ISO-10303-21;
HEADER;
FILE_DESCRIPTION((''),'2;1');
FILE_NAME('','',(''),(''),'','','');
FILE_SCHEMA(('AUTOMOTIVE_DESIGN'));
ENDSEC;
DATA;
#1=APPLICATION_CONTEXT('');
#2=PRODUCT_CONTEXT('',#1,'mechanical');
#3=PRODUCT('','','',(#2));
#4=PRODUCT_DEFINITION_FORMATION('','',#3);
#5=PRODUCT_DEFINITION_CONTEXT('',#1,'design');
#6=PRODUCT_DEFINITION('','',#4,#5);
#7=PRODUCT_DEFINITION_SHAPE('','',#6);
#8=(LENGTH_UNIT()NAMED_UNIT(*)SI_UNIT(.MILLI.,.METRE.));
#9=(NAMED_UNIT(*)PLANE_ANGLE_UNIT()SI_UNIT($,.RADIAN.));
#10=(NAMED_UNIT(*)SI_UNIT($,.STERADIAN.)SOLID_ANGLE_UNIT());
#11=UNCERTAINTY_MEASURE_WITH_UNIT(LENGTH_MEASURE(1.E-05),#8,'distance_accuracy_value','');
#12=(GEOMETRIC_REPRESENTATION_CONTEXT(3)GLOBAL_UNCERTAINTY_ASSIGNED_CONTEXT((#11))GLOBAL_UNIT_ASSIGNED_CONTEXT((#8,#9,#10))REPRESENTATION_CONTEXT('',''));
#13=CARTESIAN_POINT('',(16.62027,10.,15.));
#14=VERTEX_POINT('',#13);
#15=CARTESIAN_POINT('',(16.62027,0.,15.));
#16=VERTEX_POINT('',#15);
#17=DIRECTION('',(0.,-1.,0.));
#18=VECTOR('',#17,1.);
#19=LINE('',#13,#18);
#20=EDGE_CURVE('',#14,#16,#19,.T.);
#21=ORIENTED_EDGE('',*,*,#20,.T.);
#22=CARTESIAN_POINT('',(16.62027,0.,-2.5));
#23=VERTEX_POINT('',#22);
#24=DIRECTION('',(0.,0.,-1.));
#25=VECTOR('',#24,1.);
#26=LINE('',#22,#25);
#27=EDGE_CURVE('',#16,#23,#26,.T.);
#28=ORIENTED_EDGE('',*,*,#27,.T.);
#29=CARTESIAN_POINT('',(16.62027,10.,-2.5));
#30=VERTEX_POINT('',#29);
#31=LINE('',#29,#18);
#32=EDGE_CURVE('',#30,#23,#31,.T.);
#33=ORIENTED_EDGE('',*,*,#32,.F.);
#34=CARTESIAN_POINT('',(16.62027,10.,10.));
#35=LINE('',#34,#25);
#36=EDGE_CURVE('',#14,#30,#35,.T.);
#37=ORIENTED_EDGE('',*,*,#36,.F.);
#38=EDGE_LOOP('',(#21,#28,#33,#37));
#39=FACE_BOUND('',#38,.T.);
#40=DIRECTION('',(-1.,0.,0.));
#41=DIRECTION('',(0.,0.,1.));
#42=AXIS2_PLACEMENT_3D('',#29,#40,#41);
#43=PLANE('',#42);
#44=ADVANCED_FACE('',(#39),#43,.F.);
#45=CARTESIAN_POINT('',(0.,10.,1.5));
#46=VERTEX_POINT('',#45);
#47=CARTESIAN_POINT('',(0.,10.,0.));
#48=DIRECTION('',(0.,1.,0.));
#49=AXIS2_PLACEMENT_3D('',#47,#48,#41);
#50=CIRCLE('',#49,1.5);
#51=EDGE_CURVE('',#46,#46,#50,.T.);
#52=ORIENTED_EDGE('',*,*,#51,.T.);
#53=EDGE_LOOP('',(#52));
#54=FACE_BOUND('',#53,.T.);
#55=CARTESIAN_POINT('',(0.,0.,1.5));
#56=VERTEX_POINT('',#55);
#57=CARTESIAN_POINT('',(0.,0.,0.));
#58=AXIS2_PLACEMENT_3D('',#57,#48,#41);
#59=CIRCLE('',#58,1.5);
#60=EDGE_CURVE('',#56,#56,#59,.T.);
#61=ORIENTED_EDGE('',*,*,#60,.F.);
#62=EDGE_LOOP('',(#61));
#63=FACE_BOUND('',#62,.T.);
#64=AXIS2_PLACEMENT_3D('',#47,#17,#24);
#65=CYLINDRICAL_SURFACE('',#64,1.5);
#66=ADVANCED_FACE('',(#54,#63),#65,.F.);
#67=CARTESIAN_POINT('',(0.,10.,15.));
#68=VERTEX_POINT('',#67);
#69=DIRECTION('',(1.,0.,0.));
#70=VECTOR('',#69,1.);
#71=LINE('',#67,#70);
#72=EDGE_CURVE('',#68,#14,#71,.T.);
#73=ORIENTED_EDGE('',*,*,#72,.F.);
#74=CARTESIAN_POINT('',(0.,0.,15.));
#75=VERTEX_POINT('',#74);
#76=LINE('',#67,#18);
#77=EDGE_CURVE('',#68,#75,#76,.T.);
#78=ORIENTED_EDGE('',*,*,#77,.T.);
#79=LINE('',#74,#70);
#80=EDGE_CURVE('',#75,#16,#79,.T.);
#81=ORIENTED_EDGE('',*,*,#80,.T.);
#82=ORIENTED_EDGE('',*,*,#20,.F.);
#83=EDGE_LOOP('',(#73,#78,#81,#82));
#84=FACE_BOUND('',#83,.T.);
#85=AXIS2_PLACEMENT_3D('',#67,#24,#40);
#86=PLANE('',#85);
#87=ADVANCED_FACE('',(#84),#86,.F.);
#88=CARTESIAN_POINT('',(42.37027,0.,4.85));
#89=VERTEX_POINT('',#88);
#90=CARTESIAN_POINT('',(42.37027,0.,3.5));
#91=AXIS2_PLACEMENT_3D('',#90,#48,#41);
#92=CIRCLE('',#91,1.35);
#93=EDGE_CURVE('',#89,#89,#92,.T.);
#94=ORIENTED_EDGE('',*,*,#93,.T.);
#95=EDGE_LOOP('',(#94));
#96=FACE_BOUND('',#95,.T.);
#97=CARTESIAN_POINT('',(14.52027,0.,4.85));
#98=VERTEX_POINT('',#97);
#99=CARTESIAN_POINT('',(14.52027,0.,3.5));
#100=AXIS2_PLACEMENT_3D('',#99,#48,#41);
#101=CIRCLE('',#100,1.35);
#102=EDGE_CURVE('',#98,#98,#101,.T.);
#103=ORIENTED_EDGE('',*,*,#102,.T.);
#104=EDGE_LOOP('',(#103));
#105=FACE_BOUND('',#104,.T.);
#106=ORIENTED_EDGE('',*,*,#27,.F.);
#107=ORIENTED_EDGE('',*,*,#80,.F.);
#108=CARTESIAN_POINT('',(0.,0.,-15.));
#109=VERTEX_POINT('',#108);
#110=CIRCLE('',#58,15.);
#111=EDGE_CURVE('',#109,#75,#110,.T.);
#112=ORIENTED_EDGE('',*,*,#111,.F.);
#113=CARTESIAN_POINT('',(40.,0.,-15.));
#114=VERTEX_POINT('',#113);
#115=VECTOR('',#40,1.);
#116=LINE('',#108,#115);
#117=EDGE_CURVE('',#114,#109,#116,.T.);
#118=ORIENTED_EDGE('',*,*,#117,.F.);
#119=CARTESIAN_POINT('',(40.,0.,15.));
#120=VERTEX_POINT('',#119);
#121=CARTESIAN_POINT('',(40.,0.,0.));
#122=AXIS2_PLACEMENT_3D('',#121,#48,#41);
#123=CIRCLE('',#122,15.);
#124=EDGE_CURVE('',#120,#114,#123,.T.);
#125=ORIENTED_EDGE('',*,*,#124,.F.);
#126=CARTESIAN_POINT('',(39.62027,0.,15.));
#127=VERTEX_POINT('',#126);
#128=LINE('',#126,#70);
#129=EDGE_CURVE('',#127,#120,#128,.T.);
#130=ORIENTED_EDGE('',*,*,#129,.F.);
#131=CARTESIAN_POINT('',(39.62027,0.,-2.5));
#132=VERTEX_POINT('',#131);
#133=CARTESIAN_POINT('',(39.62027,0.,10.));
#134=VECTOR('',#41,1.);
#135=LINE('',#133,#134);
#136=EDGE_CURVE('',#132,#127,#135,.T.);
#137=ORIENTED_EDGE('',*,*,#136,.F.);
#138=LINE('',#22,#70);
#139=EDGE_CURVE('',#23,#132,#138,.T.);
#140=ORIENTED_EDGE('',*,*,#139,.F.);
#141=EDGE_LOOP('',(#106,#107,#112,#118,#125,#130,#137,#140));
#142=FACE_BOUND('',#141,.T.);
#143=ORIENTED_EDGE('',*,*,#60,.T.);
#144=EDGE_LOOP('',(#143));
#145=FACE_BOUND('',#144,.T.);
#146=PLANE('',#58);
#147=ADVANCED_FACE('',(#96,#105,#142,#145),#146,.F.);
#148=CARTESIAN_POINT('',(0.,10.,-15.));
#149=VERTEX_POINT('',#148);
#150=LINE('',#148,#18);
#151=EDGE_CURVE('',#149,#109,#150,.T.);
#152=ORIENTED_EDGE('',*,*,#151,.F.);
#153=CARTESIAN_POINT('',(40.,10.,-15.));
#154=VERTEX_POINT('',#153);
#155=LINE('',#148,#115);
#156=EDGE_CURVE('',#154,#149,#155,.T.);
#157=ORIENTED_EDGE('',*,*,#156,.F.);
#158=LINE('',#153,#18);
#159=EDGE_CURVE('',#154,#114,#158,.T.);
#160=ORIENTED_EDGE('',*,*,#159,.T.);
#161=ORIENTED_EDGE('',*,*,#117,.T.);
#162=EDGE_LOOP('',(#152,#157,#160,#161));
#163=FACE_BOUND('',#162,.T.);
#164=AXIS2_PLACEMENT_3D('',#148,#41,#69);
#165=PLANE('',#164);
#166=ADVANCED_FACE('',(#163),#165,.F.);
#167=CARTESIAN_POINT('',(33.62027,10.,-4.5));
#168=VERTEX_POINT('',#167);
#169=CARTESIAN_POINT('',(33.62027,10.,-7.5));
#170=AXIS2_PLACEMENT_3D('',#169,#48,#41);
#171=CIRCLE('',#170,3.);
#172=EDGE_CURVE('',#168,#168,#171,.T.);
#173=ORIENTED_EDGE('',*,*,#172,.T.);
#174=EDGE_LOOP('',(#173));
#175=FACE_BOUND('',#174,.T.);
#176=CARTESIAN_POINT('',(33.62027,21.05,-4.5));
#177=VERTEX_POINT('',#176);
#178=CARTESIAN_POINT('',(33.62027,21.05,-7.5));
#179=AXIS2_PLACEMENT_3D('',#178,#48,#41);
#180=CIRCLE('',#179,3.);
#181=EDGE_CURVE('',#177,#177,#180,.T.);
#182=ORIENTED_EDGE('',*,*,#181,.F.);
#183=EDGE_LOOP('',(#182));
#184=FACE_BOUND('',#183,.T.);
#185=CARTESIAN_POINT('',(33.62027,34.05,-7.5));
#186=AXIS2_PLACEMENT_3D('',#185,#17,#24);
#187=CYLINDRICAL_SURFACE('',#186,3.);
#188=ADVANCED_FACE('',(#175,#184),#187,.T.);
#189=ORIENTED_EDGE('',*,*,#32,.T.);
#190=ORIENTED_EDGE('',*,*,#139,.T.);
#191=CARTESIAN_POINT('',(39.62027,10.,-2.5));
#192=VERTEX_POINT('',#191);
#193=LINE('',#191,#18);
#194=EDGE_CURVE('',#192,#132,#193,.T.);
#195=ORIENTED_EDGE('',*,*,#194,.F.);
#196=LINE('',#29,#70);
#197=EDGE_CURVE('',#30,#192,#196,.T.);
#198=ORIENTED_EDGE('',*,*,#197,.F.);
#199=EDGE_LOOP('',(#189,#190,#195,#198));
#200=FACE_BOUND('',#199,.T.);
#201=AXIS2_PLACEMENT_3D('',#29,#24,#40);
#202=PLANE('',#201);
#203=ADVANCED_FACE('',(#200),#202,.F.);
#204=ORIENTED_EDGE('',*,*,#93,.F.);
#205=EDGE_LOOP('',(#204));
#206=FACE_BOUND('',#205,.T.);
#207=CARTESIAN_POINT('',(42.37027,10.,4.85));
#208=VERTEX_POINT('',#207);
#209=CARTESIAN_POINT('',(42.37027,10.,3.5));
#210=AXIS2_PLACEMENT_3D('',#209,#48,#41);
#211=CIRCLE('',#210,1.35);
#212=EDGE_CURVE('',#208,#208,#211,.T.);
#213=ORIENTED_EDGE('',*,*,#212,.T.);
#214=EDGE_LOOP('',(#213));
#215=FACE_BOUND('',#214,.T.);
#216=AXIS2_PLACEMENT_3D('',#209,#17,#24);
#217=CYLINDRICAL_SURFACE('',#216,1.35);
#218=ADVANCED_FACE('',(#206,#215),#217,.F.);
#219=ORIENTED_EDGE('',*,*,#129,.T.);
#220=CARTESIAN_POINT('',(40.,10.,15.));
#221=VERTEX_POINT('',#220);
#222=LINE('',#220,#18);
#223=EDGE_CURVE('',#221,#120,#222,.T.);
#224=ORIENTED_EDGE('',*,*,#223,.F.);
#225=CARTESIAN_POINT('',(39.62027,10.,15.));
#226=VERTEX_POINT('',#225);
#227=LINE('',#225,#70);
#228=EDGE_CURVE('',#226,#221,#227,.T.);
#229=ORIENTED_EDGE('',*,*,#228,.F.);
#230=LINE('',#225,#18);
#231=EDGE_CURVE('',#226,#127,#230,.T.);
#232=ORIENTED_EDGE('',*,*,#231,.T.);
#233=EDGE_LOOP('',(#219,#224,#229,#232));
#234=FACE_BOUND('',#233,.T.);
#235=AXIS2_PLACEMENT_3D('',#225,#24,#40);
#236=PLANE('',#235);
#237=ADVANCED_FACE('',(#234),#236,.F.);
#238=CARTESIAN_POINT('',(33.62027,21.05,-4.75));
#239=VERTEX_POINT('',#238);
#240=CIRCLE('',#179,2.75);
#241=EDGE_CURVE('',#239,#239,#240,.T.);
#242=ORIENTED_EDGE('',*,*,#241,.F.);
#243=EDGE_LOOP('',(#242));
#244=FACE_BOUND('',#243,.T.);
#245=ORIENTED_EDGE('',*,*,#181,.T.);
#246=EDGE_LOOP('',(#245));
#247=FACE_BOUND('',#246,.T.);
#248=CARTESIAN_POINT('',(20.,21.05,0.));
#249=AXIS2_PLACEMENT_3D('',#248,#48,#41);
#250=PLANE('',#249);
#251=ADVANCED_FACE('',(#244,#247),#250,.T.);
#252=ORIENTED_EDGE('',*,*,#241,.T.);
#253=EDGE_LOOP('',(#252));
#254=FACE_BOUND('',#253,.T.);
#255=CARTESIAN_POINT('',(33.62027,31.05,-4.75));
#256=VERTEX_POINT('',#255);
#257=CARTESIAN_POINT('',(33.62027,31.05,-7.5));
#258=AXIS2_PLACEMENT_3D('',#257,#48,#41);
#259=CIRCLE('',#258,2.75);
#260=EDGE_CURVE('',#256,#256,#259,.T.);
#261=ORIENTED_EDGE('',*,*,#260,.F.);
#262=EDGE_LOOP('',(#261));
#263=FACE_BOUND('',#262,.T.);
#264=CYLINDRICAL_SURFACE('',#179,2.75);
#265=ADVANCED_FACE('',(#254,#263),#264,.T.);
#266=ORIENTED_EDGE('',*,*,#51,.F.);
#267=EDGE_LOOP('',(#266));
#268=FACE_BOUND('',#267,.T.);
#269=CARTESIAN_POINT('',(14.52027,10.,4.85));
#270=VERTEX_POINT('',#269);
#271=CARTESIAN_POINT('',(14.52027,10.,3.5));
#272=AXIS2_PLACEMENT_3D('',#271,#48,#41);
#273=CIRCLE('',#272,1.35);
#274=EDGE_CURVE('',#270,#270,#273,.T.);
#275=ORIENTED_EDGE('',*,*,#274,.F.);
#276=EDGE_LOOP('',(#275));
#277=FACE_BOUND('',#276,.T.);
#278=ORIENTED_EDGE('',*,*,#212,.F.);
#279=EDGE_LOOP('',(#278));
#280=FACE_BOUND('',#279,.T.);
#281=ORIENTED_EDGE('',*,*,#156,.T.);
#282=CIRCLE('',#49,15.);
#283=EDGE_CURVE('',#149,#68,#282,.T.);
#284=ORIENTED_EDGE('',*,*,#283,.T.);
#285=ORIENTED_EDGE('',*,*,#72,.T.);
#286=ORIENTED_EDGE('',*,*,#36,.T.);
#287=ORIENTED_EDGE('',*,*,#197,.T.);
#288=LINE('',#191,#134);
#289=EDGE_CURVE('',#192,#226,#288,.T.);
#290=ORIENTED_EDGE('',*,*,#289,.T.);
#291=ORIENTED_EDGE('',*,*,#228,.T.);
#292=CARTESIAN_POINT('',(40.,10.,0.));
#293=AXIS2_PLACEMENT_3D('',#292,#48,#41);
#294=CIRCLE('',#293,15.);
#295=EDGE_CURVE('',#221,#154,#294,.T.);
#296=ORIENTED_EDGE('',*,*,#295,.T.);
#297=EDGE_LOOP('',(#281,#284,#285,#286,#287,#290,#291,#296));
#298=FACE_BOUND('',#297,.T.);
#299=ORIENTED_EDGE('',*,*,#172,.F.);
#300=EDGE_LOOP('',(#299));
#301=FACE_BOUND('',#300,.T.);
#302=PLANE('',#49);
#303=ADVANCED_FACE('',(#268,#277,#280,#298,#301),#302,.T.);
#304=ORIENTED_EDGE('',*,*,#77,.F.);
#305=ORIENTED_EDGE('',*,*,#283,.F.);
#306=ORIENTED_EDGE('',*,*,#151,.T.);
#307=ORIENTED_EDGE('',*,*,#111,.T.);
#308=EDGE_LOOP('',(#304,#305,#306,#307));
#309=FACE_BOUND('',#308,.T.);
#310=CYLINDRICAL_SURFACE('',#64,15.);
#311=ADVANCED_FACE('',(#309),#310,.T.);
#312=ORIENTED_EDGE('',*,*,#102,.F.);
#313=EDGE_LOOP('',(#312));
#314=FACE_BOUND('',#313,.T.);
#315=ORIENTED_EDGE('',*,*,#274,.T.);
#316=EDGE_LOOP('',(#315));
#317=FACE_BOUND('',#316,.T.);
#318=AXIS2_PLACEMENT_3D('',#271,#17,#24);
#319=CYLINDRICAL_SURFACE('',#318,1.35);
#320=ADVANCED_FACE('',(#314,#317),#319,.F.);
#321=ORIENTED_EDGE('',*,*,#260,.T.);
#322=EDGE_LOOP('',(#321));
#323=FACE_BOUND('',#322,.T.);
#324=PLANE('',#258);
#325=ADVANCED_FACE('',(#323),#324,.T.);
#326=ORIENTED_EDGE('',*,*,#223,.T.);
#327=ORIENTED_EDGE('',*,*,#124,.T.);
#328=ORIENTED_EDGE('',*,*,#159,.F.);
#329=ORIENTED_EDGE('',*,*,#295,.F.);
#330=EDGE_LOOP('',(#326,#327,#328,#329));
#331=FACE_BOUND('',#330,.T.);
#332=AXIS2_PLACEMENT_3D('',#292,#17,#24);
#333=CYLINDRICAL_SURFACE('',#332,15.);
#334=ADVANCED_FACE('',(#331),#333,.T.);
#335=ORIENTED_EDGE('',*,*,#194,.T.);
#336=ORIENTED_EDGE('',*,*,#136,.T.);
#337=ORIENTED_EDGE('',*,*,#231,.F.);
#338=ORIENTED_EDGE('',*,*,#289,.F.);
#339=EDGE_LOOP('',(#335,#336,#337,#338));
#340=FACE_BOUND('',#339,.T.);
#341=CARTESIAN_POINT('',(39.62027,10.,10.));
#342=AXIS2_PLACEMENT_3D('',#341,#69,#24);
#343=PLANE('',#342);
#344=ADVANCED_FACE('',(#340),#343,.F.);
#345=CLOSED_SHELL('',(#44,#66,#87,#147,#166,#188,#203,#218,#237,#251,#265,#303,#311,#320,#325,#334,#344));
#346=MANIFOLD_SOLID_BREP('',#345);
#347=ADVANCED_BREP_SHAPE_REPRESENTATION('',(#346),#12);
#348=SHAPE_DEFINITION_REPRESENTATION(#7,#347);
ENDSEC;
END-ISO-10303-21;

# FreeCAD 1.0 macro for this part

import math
import FreeCAD as App
import Part
import Sketcher
from FreeCAD import Vector
Q = App.Units.Quantity


def add_polygon(sketch, points):
    """Adds a closed chain of lines whose ends are joined by coincident constraints."""
    first, n = sketch.GeometryCount, len(points)
    for a, b in zip(points, points[1:] + points[:1]):
        sketch.addGeometry(Part.LineSegment(App.Vector(*a, 0), App.Vector(*b, 0)), False)
    for i in range(n):
        sketch.addConstraint(Sketcher.Constraint("Coincident", first + i, 2, first + (i + 1) % n, 1))

doc = App.newDocument("Part")
body = doc.addObject("PartDesign::Body", "Body")

# Sketch on XZ plane
sketch1 = body.newObject("Sketcher::SketchObject", "Sketch")
sketch1.AttachmentSupport = (doc.getObject("XZ_Plane"), [""])
sketch1.MapMode = "FlatFace"
sketch1.addGeometry(Part.LineSegment(Vector(40, -15, 0), Vector(0, -15, 0)), False)
sketch1.addGeometry(Part.ArcOfCircle(Part.Circle(Vector(0, 0, 0), Vector(0, 0, 1), 15), math.radians(90), math.radians(270)), False)
sketch1.addGeometry(Part.LineSegment(Vector(0, 15, 0), Vector(16.62027, 15, 0)), False)
sketch1.addGeometry(Part.LineSegment(Vector(16.62027, 15, 0), Vector(16.62027, -2.5, 0)), False)
sketch1.addGeometry(Part.LineSegment(Vector(16.62027, -2.5, 0), Vector(39.62027, -2.5, 0)), False)
sketch1.addGeometry(Part.LineSegment(Vector(39.62027, -2.5, 0), Vector(39.62027, 15, 0)), False)
sketch1.addGeometry(Part.LineSegment(Vector(39.62027, 15, 0), Vector(40, 15, 0)), False)
sketch1.addGeometry(Part.ArcOfCircle(Part.Circle(Vector(40, 0, 0), Vector(0, 0, 1), 15), math.radians(-90), math.radians(90)), False)
sketch1.addGeometry(Part.Circle(Vector(42.37027, 3.5, 0), Vector(0, 0, 1), 1.35), False)
sketch1.addGeometry(Part.Circle(Vector(14.52027, 3.5, 0), Vector(0, 0, 1), 1.35), False)
sketch1.addGeometry(Part.Circle(Vector(0, 0, 0), Vector(0, 0, 1), 1.5), False)
sketch1.addConstraint(Sketcher.Constraint("Tangent", 0, 2, 1, 2))
sketch1.addConstraint(Sketcher.Constraint("Tangent", 1, 1, 2, 1))
sketch1.addConstraint(Sketcher.Constraint("Coincident", 2, 2, 3, 1))
sketch1.addConstraint(Sketcher.Constraint("Coincident", 3, 2, 4, 1))
sketch1.addConstraint(Sketcher.Constraint("Coincident", 4, 2, 5, 1))
sketch1.addConstraint(Sketcher.Constraint("Coincident", 5, 2, 6, 1))
sketch1.addConstraint(Sketcher.Constraint("Tangent", 6, 2, 7, 2))
sketch1.addConstraint(Sketcher.Constraint("Tangent", 7, 1, 0, 1))
sketch1.addConstraint(Sketcher.Constraint("Horizontal", 0))
sketch1.addConstraint(Sketcher.Constraint("Horizontal", 2))
sketch1.addConstraint(Sketcher.Constraint("Vertical", 3))
sketch1.addConstraint(Sketcher.Constraint("Horizontal", 4))
sketch1.addConstraint(Sketcher.Constraint("Vertical", 5))
sketch1.addConstraint(Sketcher.Constraint("Horizontal", 6))
sketch1.addConstraint(Sketcher.Constraint("Coincident", 1, 3, -1, 1))
sketch1.addConstraint(Sketcher.Constraint("Coincident", 10, 3, -1, 1))
sketch1.addConstraint(Sketcher.Constraint("Equal", 1, 7))
sketch1.addConstraint(Sketcher.Constraint("Equal", 8, 9))
sketch1.addConstraint(Sketcher.Constraint("Horizontal", 8, 3, 9, 3))
sketch1.addConstraint(Sketcher.Constraint("Diameter", 10, Q("3 mm")))
sketch1.addConstraint(Sketcher.Constraint("Radius", 1, Q("15 mm")))
sketch1.addConstraint(Sketcher.Constraint("Diameter", 8, Q("2.7 mm")))
sketch1.addConstraint(Sketcher.Constraint("DistanceX", 0, 2, 0, 1, Q("40 mm")))
sketch1.addConstraint(Sketcher.Constraint("DistanceX", 4, 1, 4, 2, Q("23 mm")))
sketch1.addConstraint(Sketcher.Constraint("DistanceY", 3, 2, 3, 1, Q("17.5 mm")))
sketch1.addConstraint(Sketcher.Constraint("DistanceY", 3, 2, 9, 3, Q("6 mm")))
sketch1.addConstraint(Sketcher.Constraint("DistanceX", 9, 3, 2, 2, Q("2.1 mm")))
sketch1.addConstraint(Sketcher.Constraint("DistanceX", 9, 3, 8, 3, Q("27.85 mm")))
sketch1.addConstraint(Sketcher.Constraint("DistanceX", 2, 1, 2, 2, Q("16.62027 mm")))
pad1 = body.newObject("PartDesign::Pad", "Pad")
pad1.Profile = sketch1
pad1.Length = 10
pad1.Reversed = True

# Sketch on XZ plane
sketch2 = body.newObject("Sketcher::SketchObject", "Sketch001")
sketch2.AttachmentSupport = (doc.getObject("XZ_Plane"), [""])
sketch2.MapMode = "FlatFace"
sketch2.AttachmentOffset = App.Placement(Vector(0, 0, -10), App.Rotation())
sketch2.addGeometry(Part.Circle(Vector(33.62027, -7.5, 0), Vector(0, 0, 1), 3), False)
sketch2.addConstraint(Sketcher.Constraint("Diameter", 0, Q("6 mm")))
sketch2.addConstraint(Sketcher.Constraint("DistanceY", 0, 3, -1, 1, Q("7.5 mm")))
sketch2.addConstraint(Sketcher.Constraint("DistanceX", -1, 1, 0, 3, Q("33.62027 mm")))
pad2 = body.newObject("PartDesign::Pad", "Pad001")
pad2.Profile = sketch2
pad2.Length = 24.05
pad2.Reversed = True

# Sketch on XZ plane
sketch3 = body.newObject("Sketcher::SketchObject", "Sketch002")
sketch3.AttachmentSupport = (doc.getObject("XZ_Plane"), [""])
sketch3.MapMode = "FlatFace"
sketch3.AttachmentOffset = App.Placement(Vector(0, 0, -34.05), App.Rotation())
add_polygon(sketch3, [(-24.342, -24.342), (-24.342, 24.342), (64.342, 24.342), (64.342, -24.342)])  # lines 0-3
sketch3.addGeometry(Part.Circle(Vector(33.62027, -7.5, 0), Vector(0, 0, 1), 2.75), False)  # 4
sketch3.addConstraint(Sketcher.Constraint("Vertical", 0))
sketch3.addConstraint(Sketcher.Constraint("Horizontal", 1))
sketch3.addConstraint(Sketcher.Constraint("Vertical", 2))
sketch3.addConstraint(Sketcher.Constraint("Horizontal", 3))
sketch3.addConstraint(Sketcher.Constraint("Diameter", 4, Q("5.5 mm")))
sketch3.addConstraint(Sketcher.Constraint("DistanceY", 4, 3, -1, 1, Q("7.5 mm")))
sketch3.addConstraint(Sketcher.Constraint("DistanceX", 1, 1, 1, 2, Q("88.684 mm")))
sketch3.addConstraint(Sketcher.Constraint("DistanceY", 0, 1, 0, 2, Q("48.684 mm")))
sketch3.addConstraint(Sketcher.Constraint("DistanceX", 0, 2, -1, 1, Q("24.342 mm")))
sketch3.addConstraint(Sketcher.Constraint("DistanceY", -1, 1, 0, 2, Q("24.342 mm")))
sketch3.addConstraint(Sketcher.Constraint("DistanceX", -1, 1, 4, 3, Q("33.62027 mm")))
pocket1 = body.newObject("PartDesign::Pocket", "Pocket")
pocket1.Profile = sketch3
pocket1.Length = 13
pocket1.Reversed = True

# Sketch on XZ plane
sketch4 = body.newObject("Sketcher::SketchObject", "Sketch003")
sketch4.AttachmentSupport = (doc.getObject("XZ_Plane"), [""])
sketch4.MapMode = "FlatFace"
sketch4.AttachmentOffset = App.Placement(Vector(0, 0, -34.05), App.Rotation())
sketch4.addGeometry(Part.Circle(Vector(33.62027, -7.5, 0), Vector(0, 0, 1), 2.75), False)
sketch4.addConstraint(Sketcher.Constraint("Diameter", 0, Q("5.5 mm")))
sketch4.addConstraint(Sketcher.Constraint("DistanceY", 0, 3, -1, 1, Q("7.5 mm")))
sketch4.addConstraint(Sketcher.Constraint("DistanceX", -1, 1, 0, 3, Q("33.62027 mm")))
pocket2 = body.newObject("PartDesign::Pocket", "Pocket001")
pocket2.Profile = sketch4
pocket2.Length = 3
pocket2.Reversed = True

doc.recompute()
